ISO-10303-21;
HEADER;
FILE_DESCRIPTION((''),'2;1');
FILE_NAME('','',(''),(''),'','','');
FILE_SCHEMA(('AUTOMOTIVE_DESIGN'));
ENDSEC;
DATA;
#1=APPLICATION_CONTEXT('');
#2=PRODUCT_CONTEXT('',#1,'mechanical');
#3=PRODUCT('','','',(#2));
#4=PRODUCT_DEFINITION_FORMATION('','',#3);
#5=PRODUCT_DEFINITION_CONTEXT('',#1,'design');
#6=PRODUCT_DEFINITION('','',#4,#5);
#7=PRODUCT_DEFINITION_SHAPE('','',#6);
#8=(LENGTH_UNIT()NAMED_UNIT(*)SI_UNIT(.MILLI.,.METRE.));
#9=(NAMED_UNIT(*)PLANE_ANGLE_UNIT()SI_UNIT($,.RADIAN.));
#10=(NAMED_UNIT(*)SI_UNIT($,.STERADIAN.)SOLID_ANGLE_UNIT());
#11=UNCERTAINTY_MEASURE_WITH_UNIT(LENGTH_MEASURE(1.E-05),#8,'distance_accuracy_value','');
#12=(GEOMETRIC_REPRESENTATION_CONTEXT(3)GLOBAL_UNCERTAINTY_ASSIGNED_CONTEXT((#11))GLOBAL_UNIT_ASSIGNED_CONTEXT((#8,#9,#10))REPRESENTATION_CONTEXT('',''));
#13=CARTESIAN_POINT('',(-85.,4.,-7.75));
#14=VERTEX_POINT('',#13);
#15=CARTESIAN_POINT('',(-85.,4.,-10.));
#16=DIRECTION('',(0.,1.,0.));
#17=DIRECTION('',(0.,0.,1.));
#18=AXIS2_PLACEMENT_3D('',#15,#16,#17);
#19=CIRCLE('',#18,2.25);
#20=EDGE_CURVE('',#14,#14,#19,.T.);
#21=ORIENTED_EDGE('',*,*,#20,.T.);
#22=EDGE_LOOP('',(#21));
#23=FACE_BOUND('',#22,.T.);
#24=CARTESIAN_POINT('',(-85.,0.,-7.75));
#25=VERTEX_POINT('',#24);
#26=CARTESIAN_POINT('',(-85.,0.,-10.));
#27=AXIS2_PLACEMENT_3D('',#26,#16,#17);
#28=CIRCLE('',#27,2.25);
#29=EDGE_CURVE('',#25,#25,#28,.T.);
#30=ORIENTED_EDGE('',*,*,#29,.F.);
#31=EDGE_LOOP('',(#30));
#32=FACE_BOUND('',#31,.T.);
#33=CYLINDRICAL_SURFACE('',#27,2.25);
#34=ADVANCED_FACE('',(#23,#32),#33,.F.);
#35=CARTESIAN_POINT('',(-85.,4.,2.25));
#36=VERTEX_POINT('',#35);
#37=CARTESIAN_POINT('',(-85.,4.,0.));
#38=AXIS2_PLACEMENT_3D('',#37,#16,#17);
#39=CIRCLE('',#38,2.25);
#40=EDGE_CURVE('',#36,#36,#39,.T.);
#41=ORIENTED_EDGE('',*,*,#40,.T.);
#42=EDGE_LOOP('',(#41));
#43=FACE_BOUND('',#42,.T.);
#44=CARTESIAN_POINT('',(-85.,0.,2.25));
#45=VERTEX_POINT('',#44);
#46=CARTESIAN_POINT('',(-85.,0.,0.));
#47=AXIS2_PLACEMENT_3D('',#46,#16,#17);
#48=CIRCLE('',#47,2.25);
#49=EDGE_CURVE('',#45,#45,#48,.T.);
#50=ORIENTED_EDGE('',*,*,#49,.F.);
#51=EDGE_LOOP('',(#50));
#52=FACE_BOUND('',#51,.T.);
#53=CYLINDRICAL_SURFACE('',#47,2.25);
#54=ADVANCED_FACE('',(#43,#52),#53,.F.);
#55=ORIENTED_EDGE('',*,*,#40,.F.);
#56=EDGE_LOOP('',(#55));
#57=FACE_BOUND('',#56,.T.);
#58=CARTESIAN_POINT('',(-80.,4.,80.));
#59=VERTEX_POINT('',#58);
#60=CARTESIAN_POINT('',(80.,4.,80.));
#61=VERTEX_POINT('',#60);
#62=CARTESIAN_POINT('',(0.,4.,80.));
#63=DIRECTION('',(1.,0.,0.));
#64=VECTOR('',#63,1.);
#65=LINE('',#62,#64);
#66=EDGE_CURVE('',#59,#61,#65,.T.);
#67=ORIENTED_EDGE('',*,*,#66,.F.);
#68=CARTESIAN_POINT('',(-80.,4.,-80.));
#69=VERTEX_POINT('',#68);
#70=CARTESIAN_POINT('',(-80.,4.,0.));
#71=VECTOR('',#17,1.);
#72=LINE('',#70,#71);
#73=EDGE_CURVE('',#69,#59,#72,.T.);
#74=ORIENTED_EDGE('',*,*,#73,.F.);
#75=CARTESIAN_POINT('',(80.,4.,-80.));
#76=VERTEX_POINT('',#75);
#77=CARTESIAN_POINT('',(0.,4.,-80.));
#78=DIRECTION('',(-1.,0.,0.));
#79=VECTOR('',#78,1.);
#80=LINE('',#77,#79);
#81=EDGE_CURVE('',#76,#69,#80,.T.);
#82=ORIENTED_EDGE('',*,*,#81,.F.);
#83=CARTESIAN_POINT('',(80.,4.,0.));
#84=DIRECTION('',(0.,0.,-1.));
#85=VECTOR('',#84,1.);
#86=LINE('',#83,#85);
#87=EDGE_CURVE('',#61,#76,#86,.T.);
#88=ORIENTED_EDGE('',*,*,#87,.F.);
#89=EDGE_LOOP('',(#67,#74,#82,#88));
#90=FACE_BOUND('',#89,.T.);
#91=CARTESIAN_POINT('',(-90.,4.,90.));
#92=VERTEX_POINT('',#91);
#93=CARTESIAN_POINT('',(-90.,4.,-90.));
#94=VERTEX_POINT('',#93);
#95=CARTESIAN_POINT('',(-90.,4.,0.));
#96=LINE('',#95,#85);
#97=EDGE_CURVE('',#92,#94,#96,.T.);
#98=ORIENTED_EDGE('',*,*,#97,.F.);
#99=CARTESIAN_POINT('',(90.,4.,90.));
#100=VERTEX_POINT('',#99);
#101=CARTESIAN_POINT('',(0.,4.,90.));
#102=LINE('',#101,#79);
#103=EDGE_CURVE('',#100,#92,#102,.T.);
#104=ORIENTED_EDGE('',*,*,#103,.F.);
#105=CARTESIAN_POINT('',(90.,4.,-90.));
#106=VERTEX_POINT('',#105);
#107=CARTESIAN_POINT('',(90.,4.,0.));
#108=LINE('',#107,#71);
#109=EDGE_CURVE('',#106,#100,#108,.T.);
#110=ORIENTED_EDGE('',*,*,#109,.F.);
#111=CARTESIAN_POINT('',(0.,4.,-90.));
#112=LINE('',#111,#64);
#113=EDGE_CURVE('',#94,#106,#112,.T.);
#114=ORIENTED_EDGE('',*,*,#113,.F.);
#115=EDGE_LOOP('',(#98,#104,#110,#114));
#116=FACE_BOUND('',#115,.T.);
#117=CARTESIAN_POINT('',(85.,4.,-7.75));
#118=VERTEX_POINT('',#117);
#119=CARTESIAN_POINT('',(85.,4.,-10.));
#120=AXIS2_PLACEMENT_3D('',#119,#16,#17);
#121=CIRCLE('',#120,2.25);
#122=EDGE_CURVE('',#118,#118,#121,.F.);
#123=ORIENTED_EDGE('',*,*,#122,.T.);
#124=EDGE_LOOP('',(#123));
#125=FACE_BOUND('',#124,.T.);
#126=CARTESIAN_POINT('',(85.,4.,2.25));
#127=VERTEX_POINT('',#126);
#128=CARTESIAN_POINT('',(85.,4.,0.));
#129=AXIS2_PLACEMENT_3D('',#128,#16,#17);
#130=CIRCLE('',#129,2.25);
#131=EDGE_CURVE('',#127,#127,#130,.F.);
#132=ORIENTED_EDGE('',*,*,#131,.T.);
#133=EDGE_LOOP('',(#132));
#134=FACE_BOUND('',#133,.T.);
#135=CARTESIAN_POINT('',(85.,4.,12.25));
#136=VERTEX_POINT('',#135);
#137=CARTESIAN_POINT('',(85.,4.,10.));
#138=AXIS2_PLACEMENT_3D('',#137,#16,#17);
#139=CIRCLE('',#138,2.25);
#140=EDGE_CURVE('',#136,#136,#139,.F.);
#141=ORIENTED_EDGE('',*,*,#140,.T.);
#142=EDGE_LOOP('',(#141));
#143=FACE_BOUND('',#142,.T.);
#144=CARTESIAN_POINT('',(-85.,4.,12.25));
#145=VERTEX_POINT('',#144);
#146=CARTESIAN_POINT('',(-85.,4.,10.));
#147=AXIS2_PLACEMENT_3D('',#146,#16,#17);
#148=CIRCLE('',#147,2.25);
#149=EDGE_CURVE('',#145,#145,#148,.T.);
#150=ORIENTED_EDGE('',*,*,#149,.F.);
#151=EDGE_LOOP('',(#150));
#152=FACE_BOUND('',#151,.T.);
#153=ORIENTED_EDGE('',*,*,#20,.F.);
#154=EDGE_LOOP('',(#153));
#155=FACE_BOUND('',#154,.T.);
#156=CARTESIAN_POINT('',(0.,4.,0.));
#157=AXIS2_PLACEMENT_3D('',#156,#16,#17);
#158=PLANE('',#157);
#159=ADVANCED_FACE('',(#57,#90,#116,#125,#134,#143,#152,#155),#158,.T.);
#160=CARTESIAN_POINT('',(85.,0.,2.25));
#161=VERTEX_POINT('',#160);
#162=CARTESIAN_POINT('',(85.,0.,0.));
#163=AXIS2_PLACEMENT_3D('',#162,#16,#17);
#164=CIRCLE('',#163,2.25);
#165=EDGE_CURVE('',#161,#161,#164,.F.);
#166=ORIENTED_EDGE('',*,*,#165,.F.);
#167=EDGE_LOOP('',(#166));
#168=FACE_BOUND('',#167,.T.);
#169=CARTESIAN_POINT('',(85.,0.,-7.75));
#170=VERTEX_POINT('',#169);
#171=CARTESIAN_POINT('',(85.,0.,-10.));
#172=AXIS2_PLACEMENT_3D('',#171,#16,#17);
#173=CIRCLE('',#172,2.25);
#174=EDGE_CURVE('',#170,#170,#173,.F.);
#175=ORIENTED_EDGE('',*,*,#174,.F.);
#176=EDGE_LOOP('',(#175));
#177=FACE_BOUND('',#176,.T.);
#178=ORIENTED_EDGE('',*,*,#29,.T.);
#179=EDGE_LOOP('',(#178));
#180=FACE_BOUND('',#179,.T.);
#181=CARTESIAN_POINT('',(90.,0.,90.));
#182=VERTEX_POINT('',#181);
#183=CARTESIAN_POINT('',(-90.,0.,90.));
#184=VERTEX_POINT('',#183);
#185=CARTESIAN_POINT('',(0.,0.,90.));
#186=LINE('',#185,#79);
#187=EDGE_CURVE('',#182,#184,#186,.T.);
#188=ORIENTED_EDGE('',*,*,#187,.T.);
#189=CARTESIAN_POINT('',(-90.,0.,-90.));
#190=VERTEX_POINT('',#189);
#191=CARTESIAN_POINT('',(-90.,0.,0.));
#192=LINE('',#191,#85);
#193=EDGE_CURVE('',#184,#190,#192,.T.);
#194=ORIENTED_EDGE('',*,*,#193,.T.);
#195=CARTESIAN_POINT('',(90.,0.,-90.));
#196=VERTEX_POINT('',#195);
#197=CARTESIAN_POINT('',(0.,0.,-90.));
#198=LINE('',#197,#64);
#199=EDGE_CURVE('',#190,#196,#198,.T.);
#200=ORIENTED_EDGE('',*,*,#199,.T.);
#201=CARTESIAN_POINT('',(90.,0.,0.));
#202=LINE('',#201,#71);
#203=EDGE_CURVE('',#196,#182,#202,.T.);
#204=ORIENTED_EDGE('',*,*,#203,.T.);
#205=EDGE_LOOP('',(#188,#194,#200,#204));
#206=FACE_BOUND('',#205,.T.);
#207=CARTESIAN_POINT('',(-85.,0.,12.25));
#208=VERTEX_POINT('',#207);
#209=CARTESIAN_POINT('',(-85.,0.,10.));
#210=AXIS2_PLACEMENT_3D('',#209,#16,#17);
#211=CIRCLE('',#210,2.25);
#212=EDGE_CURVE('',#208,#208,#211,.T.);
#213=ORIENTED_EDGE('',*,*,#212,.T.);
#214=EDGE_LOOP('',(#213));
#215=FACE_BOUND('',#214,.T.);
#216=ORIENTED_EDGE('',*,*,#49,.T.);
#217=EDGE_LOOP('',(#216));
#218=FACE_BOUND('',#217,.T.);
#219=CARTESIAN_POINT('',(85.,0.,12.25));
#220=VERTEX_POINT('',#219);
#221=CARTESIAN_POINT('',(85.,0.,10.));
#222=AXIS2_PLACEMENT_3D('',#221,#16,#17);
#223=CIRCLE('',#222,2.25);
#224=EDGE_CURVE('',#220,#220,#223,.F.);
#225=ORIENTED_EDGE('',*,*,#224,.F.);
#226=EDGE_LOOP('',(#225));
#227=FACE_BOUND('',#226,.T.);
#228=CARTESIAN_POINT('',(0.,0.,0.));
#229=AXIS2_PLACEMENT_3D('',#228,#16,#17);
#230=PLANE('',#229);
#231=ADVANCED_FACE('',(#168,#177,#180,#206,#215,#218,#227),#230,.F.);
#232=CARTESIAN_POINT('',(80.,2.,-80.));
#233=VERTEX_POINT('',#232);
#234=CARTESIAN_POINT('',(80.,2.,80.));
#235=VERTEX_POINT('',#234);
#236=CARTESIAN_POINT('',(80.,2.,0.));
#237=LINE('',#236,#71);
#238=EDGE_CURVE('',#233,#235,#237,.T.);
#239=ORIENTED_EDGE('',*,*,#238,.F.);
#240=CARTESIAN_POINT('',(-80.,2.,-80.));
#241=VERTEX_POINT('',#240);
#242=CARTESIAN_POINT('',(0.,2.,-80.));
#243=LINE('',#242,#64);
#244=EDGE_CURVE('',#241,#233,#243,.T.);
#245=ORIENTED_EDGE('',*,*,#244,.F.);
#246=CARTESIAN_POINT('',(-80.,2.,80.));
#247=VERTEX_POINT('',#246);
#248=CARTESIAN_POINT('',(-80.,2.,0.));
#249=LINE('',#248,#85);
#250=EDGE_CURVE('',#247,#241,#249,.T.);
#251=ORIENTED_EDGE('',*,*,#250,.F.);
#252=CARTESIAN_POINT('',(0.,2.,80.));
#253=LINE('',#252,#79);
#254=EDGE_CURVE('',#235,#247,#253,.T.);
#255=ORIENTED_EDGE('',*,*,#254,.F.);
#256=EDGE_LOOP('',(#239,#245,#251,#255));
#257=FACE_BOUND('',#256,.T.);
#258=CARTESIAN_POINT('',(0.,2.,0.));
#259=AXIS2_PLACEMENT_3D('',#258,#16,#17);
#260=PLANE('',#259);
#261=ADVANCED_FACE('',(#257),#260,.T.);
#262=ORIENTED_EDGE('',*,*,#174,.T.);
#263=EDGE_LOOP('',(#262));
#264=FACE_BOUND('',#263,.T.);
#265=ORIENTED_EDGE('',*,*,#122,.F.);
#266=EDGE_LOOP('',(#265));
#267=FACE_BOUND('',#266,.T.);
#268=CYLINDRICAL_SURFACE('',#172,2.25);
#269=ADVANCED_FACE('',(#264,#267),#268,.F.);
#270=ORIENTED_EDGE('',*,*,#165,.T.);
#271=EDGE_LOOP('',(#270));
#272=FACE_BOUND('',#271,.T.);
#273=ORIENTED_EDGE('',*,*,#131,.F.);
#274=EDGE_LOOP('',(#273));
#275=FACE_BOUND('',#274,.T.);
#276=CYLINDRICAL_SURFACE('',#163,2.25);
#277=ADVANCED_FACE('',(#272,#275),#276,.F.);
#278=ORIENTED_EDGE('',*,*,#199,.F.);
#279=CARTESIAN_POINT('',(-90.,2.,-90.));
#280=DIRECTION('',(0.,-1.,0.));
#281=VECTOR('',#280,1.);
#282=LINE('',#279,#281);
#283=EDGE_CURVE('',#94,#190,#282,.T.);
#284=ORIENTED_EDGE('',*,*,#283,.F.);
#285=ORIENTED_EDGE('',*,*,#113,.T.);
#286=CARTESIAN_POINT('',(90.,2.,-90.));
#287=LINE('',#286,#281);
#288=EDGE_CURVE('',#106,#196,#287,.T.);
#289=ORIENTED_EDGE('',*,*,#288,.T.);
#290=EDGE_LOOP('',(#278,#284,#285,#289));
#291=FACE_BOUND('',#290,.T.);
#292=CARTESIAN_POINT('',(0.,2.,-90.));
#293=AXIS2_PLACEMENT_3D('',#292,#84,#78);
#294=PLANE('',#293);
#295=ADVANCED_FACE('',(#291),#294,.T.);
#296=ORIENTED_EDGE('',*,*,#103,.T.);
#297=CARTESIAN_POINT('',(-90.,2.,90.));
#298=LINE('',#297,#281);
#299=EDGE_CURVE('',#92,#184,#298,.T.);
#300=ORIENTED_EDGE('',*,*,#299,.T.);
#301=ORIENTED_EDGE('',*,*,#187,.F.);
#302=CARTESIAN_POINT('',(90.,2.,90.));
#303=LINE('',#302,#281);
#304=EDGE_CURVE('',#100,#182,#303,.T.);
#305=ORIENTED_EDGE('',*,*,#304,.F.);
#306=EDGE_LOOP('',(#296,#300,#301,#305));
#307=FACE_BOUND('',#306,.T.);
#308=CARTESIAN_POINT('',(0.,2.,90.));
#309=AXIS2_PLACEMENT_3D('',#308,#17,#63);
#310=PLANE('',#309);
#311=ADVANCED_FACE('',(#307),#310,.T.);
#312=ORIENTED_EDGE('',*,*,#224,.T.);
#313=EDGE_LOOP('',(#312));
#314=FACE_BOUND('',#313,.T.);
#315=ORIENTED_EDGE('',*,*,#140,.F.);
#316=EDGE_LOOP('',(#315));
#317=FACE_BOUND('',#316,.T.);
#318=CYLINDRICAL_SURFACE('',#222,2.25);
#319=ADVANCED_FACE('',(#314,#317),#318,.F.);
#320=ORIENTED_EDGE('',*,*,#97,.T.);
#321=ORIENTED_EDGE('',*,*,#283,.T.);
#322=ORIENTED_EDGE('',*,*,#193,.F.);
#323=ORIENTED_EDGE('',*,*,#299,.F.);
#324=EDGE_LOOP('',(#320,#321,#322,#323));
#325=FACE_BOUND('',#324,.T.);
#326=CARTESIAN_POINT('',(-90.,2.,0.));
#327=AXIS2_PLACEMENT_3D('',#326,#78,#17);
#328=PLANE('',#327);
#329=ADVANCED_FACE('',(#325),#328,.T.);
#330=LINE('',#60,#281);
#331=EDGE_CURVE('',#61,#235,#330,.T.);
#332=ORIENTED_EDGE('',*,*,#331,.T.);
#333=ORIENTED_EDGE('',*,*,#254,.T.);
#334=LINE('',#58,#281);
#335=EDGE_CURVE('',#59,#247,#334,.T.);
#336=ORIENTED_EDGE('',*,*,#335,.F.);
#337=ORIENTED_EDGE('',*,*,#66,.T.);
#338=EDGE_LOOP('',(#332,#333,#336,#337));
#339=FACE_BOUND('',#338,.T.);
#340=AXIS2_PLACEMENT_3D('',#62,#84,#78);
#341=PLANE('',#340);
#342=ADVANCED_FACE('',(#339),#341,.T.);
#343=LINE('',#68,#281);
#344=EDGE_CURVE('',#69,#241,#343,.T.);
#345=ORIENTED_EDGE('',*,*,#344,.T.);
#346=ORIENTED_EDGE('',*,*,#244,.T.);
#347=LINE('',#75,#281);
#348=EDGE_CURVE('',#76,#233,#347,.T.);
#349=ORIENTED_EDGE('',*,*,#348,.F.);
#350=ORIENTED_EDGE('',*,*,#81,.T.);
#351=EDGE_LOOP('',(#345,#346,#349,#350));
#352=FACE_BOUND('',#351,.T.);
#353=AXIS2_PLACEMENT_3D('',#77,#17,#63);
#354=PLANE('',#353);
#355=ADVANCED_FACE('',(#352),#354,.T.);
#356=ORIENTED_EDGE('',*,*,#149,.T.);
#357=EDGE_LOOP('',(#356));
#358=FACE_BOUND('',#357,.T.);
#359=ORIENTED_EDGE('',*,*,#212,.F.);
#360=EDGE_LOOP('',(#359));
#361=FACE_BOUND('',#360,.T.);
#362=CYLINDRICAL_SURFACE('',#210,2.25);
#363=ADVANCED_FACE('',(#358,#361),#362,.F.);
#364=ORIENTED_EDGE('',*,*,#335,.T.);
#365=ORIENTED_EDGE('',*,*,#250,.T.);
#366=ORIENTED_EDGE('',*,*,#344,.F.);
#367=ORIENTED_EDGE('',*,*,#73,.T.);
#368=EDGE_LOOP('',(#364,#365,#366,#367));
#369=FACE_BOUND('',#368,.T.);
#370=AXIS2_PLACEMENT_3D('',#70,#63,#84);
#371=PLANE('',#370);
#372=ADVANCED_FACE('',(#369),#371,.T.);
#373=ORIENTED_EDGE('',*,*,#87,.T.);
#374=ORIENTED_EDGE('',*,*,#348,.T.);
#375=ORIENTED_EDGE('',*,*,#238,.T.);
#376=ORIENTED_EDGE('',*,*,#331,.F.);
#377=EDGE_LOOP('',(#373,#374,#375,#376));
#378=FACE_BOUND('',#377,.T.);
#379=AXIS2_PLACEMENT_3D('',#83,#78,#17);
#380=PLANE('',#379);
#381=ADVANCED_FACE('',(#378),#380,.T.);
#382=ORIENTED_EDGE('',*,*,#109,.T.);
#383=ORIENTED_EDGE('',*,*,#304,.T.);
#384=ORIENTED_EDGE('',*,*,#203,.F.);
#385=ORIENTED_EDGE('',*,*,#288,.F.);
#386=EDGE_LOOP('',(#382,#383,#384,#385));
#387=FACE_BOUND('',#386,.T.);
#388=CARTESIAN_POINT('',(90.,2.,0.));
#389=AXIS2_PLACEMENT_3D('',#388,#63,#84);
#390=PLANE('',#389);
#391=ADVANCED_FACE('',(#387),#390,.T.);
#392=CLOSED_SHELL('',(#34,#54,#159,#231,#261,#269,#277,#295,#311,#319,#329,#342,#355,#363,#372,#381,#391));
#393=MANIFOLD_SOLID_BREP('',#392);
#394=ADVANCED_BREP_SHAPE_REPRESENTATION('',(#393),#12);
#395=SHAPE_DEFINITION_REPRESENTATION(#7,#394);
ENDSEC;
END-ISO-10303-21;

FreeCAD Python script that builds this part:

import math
import FreeCAD as App
import Part
import Sketcher


def add_polygon(sketch, points):
    """Adds a closed chain of lines whose ends are joined by coincident constraints."""
    first, n = sketch.GeometryCount, len(points)
    for a, b in zip(points, points[1:] + points[:1]):
        sketch.addGeometry(Part.LineSegment(App.Vector(*a, 0), App.Vector(*b, 0)), False)
    for i in range(n):
        sketch.addConstraint(Sketcher.Constraint("Coincident", first + i, 2, first + (i + 1) % n, 1))

doc = App.newDocument("Part")
params = doc.addObject("Spreadsheet::Sheet", "Params")
for row, (alias, value) in enumerate([
    ("sketch1_width", "180 mm"),
    ("pad1_length", "2 mm"),
    ("sketch2_width", "180 mm"),
    ("sketch2_width2", "160 mm"),
    ("pad2_length", "4 mm"),
    ("sketch3_diameter", "4.5 mm"),
], start=1):
    params.set(f"A{row}", alias)
    params.set(f"B{row}", "=" + value)
    params.setAlias(f"B{row}", alias)

body = doc.addObject("PartDesign::Body", "Body")

# Sketch on XZ plane
sketch1 = doc.addObject("Sketcher::SketchObject", "Sketch")
body.addObject(sketch1)
sketch1.AttachmentSupport = (doc.XZ_Plane, [""])
sketch1.MapMode = "FlatFace"
add_polygon(sketch1, [(-90, -90), (-90, 90), (90, 90), (90, -90)])  # lines 0-3
sketch1.addConstraint([
    Sketcher.Constraint("Vertical", 0),
    Sketcher.Constraint("Horizontal", 1),
    Sketcher.Constraint("Vertical", 2),
    Sketcher.Constraint("Horizontal", 3),
    Sketcher.Constraint("Symmetric", 0, 2, 2, 2, -1, 1),
    Sketcher.Constraint("Equal", 3, 0),
    Sketcher.Constraint("DistanceX", 1, 1, 1, 2, 180.0),
])
sketch1.setExpression("Constraints[10]", "Params.sketch1_width")
pad1 = doc.addObject("PartDesign::Pad", "Pad")
body.addObject(pad1)
pad1.Profile = sketch1
pad1.setExpression("Length", "Params.pad1_length")
pad1.Reversed = True

# Sketch on XZ plane
sketch2 = doc.addObject("Sketcher::SketchObject", "Sketch001")
body.addObject(sketch2)
sketch2.AttachmentSupport = (doc.XZ_Plane, [""])
sketch2.MapMode = "FlatFace"
add_polygon(sketch2, [(-90, -90), (-90, 90), (90, 90), (90, -90)])  # lines 0-3
add_polygon(sketch2, [(-80, 80), (-80, -80), (80, -80), (80, 80)])  # lines 4-7
sketch2.addConstraint([
    Sketcher.Constraint("Vertical", 0),
    Sketcher.Constraint("Horizontal", 1),
    Sketcher.Constraint("Vertical", 2),
    Sketcher.Constraint("Horizontal", 3),
    Sketcher.Constraint("Vertical", 4),
    Sketcher.Constraint("Horizontal", 5),
    Sketcher.Constraint("Vertical", 6),
    Sketcher.Constraint("Horizontal", 7),
    Sketcher.Constraint("Symmetric", 0, 2, 2, 2, -1, 1),
    Sketcher.Constraint("Symmetric", 4, 2, 6, 2, -1, 1),
    Sketcher.Constraint("Equal", 3, 0),
    Sketcher.Constraint("Equal", 7, 4),
    Sketcher.Constraint("DistanceX", 1, 1, 1, 2, 180.0),
    Sketcher.Constraint("DistanceX", 5, 1, 5, 2, 160.0),
])
sketch2.setExpression("Constraints[20]", "Params.sketch2_width")
sketch2.setExpression("Constraints[21]", "Params.sketch2_width2")
pad2 = doc.addObject("PartDesign::Pad", "Pad001")
body.addObject(pad2)
pad2.Profile = sketch2
pad2.setExpression("Length", "Params.pad2_length")
pad2.Reversed = True

# Sketch on XZ plane
sketch3 = doc.addObject("Sketcher::SketchObject", "Sketch002")
body.addObject(sketch3)
sketch3.AttachmentSupport = (doc.XZ_Plane, [""])
sketch3.MapMode = "FlatFace"
sketch3.AttachmentOffset = App.Placement(App.Vector(0, 0, -4), App.Rotation())
sketch3.addGeometry([
    Part.ArcOfCircle(Part.Circle(App.Vector(-85, -10, 0), App.Vector(0, 0, 1), 2.2), math.radians(90), math.radians(270)),  # 0
    Part.ArcOfCircle(Part.Circle(App.Vector(-85, -10, 0), App.Vector(0, 0, 1), 2.2), math.radians(0), math.radians(90)),  # 1
    Part.ArcOfCircle(Part.Circle(App.Vector(-85, -10, 0), App.Vector(0, 0, 1), 2.2), math.radians(-90), math.radians(0)),  # 2
    Part.ArcOfCircle(Part.Circle(App.Vector(-85, 0, 0), App.Vector(0, 0, 1), 2.2), math.radians(-90), math.radians(0)),  # 3
    Part.ArcOfCircle(Part.Circle(App.Vector(-85, 0, 0), App.Vector(0, 0, 1), 2.2), math.radians(180), math.radians(270)),  # 4
    Part.ArcOfCircle(Part.Circle(App.Vector(-85, 0, 0), App.Vector(0, 0, 1), 2.2), math.radians(90), math.radians(180)),  # 5
    Part.ArcOfCircle(Part.Circle(App.Vector(-85, 0, 0), App.Vector(0, 0, 1), 2.2), math.radians(0), math.radians(90)),  # 6
    Part.ArcOfCircle(Part.Circle(App.Vector(-85, 10, 0), App.Vector(0, 0, 1), 2.2), math.radians(-90), math.radians(0)),  # 7
    Part.ArcOfCircle(Part.Circle(App.Vector(-85, 10, 0), App.Vector(0, 0, 1), 2.2), math.radians(90), math.radians(270)),  # 8
    Part.ArcOfCircle(Part.Circle(App.Vector(-85, 10, 0), App.Vector(0, 0, 1), 2.2), math.radians(0), math.radians(90)),  # 9
    Part.Circle(App.Vector(85, -10, 0), App.Vector(0, 0, 1), 2.2),  # 10
    Part.Circle(App.Vector(85, 0, 0), App.Vector(0, 0, 1), 2.2),  # 11
    Part.Circle(App.Vector(85, 10, 0), App.Vector(0, 0, 1), 2.2),  # 12
], False)
sketch3.addConstraint([
    Sketcher.Constraint("Tangent", 0, 1, 1, 2),
    Sketcher.Constraint("Tangent", 1, 1, 2, 2),
    Sketcher.Constraint("Tangent", 2, 1, 0, 2),
    Sketcher.Constraint("Tangent", 3, 1, 4, 2),
    Sketcher.Constraint("Tangent", 4, 1, 5, 2),
    Sketcher.Constraint("Tangent", 5, 1, 6, 2),
    Sketcher.Constraint("Tangent", 6, 1, 3, 2),
    Sketcher.Constraint("Tangent", 7, 1, 8, 2),
    Sketcher.Constraint("Tangent", 8, 1, 9, 2),
    Sketcher.Constraint("Tangent", 9, 1, 7, 2),
    Sketcher.Constraint("Equal", 2, 3),
    Sketcher.Constraint("Equal", 3, 4),
    Sketcher.Constraint("Equal", 6, 7),
    Sketcher.Constraint("Equal", 9, 10),
    Sketcher.Constraint("Equal", 10, 11),
    Sketcher.Constraint("Equal", 11, 12),
    Sketcher.Constraint("Symmetric", 7, 3, 10, 3, -1, 1),
    Sketcher.Constraint("Symmetric", 3, 3, 11, 3, -1, 1),
    Sketcher.Constraint("Symmetric", 0, 3, 12, 3, -1, 1),
    Sketcher.Constraint("Symmetric", 0, 3, 10, 3, -2),
    Sketcher.Constraint("Symmetric", 3, 1, 5, 1, -1),
    Sketcher.Constraint("PointOnObject", 4, 1, -1),
    Sketcher.Constraint("PointOnObject", 6, 1, -1),
    Sketcher.Constraint("Horizontal", 10, 3, 1, 1),
    Sketcher.Constraint("Horizontal", 12, 3, 9, 1),
    Sketcher.Constraint("Vertical", 2, 3, 3, 3),
    Sketcher.Constraint("Vertical", 9, 3, 0, 1),
    Sketcher.Constraint("Vertical", 0, 1, 2, 1),
    Sketcher.Constraint("Vertical", 2, 1, 3, 1),
    Sketcher.Constraint("Vertical", 5, 1, 7, 1),
    Sketcher.Constraint("Vertical", 7, 1, 8, 1),
    Sketcher.Constraint("Diameter", 10, 4.5),
    Sketcher.Constraint("DistanceX", 0, 3, -1, 1, 85.0),
    Sketcher.Constraint("DistanceY", 0, 3, -1, 1, 10.0),
])
sketch3.setExpression("Constraints[31]", "Params.sketch3_diameter")
pocket1 = doc.addObject("PartDesign::Pocket", "Pocket")
body.addObject(pocket1)
pocket1.Profile = sketch3
pocket1.Type = "ThroughAll"
pocket1.Midplane = True

doc.recompute()
